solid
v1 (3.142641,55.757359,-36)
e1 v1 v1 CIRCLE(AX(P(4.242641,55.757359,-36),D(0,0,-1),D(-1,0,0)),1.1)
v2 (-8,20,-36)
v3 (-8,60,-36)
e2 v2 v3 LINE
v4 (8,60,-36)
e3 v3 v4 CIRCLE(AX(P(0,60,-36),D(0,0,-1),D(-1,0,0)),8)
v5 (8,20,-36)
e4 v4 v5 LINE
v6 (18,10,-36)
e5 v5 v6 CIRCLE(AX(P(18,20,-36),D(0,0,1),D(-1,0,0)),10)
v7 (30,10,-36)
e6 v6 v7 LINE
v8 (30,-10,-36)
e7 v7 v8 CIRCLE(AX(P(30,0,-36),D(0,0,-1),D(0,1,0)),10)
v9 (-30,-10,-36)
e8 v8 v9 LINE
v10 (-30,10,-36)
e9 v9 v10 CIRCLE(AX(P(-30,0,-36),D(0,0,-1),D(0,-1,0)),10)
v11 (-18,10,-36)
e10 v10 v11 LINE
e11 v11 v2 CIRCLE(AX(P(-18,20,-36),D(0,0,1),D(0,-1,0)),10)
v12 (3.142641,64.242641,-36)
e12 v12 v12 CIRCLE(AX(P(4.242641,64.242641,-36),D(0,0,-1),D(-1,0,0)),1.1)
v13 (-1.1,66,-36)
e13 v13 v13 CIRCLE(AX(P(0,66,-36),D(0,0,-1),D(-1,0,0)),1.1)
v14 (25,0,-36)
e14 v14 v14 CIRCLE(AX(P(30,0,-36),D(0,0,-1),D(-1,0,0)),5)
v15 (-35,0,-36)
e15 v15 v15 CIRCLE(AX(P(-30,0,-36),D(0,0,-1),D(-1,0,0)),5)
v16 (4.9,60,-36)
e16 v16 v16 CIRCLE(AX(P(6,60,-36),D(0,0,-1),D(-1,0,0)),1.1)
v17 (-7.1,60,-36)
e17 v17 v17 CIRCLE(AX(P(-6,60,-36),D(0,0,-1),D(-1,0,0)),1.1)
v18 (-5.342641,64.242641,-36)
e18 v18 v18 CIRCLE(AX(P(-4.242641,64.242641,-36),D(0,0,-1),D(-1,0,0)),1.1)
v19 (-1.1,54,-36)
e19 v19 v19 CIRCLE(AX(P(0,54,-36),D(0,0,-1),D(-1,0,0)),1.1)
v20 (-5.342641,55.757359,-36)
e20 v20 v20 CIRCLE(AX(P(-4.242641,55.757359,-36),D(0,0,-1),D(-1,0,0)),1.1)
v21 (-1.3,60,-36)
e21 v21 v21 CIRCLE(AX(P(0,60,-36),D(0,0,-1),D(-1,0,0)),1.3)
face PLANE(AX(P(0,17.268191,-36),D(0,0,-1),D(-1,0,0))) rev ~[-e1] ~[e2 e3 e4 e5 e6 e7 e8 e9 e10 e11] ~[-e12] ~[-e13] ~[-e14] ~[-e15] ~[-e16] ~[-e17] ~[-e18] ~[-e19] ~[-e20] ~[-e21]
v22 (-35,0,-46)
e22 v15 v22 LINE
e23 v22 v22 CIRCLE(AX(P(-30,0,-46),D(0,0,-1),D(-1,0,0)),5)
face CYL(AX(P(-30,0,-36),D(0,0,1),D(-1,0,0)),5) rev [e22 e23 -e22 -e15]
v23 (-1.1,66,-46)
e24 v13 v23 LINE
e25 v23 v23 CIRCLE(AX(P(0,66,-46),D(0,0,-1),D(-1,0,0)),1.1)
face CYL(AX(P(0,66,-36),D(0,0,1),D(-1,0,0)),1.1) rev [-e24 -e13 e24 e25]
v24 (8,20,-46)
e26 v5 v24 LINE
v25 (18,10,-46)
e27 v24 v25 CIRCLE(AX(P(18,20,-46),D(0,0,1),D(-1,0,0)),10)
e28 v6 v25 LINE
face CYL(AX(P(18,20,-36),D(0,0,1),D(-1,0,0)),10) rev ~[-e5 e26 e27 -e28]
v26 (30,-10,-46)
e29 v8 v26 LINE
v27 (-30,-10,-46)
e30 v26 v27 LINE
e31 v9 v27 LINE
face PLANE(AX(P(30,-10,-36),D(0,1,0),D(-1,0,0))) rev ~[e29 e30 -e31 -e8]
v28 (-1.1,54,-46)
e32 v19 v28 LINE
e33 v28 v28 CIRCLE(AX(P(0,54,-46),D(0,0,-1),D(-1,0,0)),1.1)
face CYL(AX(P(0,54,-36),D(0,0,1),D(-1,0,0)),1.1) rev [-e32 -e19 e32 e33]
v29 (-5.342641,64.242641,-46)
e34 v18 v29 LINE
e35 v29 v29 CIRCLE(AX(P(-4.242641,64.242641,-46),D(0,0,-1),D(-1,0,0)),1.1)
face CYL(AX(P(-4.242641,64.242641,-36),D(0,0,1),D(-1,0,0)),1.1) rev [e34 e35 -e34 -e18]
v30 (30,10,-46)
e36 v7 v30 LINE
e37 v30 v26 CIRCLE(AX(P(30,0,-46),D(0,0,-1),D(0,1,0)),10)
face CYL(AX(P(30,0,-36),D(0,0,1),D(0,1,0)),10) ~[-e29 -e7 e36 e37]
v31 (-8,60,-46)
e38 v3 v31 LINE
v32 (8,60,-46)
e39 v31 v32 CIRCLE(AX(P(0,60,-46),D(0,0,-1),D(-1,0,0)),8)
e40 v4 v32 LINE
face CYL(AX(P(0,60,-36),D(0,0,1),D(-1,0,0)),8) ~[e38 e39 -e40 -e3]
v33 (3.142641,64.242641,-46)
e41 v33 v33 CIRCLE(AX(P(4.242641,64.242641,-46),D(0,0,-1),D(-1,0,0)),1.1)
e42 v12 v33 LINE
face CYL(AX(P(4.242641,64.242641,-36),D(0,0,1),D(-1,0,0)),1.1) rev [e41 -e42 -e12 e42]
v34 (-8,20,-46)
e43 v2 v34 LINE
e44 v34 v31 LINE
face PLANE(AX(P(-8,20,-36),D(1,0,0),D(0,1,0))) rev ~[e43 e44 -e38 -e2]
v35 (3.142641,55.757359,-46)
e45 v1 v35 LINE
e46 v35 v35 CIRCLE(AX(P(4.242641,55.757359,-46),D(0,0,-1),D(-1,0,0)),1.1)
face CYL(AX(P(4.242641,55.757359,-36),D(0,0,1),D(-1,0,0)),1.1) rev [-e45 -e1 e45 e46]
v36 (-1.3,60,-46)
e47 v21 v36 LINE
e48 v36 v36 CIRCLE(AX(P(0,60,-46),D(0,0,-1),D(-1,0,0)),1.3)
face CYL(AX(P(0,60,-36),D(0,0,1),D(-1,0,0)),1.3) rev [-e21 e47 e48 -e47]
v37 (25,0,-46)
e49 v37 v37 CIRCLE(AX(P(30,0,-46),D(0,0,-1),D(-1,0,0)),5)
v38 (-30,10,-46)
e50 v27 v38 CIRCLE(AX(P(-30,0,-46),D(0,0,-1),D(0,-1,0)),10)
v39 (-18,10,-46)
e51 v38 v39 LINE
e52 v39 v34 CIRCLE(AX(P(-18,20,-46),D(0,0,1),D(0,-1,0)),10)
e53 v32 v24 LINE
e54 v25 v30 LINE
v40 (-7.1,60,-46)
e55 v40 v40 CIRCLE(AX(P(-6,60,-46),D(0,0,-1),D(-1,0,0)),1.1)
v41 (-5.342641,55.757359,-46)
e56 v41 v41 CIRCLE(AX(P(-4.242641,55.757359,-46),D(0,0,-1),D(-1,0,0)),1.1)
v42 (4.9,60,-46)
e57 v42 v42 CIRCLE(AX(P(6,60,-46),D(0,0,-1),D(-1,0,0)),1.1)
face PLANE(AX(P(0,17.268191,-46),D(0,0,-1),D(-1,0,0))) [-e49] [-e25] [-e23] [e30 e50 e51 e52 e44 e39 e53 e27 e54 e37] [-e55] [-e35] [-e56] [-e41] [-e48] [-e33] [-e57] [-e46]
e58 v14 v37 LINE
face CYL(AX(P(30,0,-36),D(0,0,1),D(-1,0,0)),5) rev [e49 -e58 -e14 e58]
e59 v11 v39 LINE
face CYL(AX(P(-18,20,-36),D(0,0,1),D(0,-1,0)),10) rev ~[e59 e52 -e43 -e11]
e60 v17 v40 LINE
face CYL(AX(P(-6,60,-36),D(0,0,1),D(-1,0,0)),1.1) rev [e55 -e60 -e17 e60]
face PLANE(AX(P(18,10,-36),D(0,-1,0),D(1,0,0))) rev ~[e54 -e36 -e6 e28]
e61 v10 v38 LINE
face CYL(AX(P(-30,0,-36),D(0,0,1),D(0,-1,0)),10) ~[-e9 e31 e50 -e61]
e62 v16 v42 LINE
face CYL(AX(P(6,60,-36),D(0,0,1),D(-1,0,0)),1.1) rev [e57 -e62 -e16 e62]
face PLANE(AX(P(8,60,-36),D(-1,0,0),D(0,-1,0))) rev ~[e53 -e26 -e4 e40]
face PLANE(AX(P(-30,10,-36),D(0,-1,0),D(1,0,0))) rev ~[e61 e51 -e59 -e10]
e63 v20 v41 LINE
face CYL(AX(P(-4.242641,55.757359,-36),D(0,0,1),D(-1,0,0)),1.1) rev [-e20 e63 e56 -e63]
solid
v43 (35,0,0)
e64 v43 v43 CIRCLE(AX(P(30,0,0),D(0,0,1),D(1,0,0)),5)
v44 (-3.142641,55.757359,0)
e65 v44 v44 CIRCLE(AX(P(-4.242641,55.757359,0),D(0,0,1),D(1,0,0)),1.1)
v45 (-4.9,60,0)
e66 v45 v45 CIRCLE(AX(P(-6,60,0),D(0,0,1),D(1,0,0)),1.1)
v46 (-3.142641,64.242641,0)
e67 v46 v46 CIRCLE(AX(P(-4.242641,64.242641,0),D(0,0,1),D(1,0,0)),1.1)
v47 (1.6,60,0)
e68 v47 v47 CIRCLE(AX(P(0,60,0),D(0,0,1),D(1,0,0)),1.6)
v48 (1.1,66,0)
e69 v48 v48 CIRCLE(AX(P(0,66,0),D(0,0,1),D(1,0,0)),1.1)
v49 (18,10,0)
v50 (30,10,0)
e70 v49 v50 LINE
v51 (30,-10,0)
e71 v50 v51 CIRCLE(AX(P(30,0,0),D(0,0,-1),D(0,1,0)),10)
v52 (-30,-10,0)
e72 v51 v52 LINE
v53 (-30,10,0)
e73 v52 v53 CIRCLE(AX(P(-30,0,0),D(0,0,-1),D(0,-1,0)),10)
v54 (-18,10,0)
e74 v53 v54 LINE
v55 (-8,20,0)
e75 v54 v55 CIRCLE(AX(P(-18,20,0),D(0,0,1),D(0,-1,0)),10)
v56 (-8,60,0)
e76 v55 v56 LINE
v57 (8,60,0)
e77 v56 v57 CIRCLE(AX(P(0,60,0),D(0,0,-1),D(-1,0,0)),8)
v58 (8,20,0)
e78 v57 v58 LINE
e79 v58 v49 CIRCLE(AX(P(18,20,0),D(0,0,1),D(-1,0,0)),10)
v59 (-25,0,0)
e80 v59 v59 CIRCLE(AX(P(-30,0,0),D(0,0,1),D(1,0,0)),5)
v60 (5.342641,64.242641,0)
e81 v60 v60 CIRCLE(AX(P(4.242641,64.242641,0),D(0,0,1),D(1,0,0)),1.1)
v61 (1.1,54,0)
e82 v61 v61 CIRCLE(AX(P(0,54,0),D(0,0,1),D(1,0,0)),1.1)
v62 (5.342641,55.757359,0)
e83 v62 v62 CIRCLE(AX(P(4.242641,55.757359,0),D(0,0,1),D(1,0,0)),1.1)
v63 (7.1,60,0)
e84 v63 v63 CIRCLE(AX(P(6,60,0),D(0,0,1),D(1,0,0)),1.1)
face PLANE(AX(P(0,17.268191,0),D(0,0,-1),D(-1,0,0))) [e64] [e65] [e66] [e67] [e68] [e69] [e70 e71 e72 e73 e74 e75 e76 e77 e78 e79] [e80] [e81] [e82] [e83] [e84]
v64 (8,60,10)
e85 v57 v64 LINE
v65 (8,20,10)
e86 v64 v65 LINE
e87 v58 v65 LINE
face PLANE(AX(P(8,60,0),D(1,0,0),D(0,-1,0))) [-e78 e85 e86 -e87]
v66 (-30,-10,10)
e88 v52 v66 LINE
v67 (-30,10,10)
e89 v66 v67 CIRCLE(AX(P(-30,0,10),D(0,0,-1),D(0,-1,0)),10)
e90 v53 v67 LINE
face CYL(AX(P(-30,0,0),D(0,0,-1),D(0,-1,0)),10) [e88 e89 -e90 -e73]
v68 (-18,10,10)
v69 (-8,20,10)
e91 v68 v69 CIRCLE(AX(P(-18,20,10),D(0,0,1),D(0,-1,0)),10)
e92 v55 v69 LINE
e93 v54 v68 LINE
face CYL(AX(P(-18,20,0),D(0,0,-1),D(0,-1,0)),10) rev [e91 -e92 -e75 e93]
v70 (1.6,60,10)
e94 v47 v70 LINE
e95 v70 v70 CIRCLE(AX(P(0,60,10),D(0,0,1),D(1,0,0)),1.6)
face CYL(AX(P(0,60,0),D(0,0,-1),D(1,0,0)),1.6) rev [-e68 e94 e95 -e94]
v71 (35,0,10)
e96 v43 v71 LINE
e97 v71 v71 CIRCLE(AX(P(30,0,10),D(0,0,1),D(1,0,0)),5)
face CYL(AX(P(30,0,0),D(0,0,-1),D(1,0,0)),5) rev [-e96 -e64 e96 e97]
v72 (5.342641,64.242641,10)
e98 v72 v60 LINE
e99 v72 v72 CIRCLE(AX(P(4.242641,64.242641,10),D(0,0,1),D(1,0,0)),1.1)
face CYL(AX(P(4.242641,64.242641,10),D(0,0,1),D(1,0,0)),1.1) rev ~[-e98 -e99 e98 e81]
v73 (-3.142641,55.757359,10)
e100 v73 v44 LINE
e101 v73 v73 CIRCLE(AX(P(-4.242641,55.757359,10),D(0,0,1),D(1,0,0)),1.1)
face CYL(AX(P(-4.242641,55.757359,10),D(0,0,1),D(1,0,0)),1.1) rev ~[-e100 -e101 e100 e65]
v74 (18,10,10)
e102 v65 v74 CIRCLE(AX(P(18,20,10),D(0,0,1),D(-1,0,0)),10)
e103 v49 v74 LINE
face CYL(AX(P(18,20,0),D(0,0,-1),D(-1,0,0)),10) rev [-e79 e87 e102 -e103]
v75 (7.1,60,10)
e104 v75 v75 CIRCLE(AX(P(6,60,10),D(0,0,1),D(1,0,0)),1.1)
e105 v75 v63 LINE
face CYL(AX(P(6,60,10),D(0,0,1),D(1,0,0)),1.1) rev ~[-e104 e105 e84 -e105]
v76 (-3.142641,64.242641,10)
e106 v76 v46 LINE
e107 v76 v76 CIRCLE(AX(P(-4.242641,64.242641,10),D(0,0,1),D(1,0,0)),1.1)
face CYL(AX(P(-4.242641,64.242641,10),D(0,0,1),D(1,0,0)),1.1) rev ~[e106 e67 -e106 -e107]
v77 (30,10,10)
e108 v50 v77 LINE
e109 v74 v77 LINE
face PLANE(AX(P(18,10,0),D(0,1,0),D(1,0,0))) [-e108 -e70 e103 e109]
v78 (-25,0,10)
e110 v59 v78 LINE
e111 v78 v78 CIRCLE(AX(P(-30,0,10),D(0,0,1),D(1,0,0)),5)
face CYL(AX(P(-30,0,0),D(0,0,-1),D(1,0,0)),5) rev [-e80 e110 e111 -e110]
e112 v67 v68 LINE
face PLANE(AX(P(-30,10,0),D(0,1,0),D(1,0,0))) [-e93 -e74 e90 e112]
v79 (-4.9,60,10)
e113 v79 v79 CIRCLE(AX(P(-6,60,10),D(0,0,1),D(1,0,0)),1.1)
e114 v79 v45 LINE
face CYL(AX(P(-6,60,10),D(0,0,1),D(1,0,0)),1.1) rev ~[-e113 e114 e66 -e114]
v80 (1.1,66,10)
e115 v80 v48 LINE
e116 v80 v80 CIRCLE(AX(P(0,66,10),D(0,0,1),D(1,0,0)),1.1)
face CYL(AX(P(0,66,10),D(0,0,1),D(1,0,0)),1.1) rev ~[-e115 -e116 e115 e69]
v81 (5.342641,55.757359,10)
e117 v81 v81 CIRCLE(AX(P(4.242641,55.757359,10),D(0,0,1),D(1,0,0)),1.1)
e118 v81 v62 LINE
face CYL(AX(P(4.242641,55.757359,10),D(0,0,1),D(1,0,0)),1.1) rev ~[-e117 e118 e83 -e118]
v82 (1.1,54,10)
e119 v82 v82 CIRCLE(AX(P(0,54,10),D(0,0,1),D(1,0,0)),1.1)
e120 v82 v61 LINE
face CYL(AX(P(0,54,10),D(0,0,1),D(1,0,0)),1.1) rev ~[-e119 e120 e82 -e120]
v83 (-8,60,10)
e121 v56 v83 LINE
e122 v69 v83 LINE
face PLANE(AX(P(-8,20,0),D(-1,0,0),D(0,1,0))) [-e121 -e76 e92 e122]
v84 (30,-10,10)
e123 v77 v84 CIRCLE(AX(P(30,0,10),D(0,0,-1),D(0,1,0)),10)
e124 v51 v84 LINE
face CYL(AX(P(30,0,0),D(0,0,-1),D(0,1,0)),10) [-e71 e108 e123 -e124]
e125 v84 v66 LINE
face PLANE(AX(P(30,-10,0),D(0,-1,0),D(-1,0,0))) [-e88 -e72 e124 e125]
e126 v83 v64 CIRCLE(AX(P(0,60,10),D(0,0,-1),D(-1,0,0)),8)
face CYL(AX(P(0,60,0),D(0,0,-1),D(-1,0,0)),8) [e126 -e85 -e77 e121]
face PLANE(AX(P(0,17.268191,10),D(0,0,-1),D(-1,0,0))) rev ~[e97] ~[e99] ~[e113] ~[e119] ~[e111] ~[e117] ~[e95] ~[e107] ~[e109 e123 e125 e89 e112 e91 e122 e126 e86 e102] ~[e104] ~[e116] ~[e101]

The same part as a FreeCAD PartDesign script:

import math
import FreeCAD as App
import Part
import Sketcher

V = App.Vector

doc = App.newDocument("Part")
body = doc.addObject("PartDesign::Body", "Body")

# Sketch on XY plane
sketch1 = body.newObject("Sketcher::SketchObject", "Sketch")
sketch1.AttachmentSupport = (doc.getObject("XY_Plane"), [""])
sketch1.MapMode = "FlatFace"
sketch1.addGeometry([
    Part.LineSegment(V(-18, 10, 0), V(-30, 10, 0)),  # 0
    Part.ArcOfCircle(Part.Circle(V(-30, 0, 0), V(0, 0, 1), 10), math.radians(90), math.radians(270)),  # 1
    Part.LineSegment(V(-30, -10, 0), V(30, -10, 0)),  # 2
    Part.ArcOfCircle(Part.Circle(V(30, 0, 0), V(0, 0, 1), 10), math.radians(-90), math.radians(90)),  # 3
    Part.LineSegment(V(30, 10, 0), V(18, 10, 0)),  # 4
    Part.ArcOfCircle(Part.Circle(V(18, 20, 0), V(0, 0, 1), 10), math.radians(180), math.radians(270)),  # 5
    Part.LineSegment(V(8, 20, 0), V(8, 60, 0)),  # 6
    Part.ArcOfCircle(Part.Circle(V(0, 60, 0), V(0, 0, 1), 8), math.radians(0), math.radians(180)),  # 7
    Part.LineSegment(V(-8, 60, 0), V(-8, 20, 0)),  # 8
    Part.ArcOfCircle(Part.Circle(V(-18, 20, 0), V(0, 0, 1), 10), math.radians(-90), math.radians(0)),  # 9
    Part.Circle(V(30, 0, 0), V(0, 0, 1), 5),  # 10
    Part.Circle(V(-30, 0, 0), V(0, 0, 1), 5),  # 11
    Part.Circle(V(0, 60, 0), V(0, 0, 1), 1.6),  # 12
], False)
sketch1.addConstraint([
    Sketcher.Constraint("Tangent", 0, 2, 1, 1),
    Sketcher.Constraint("Tangent", 1, 2, 2, 1),
    Sketcher.Constraint("Tangent", 2, 2, 3, 1),
    Sketcher.Constraint("Tangent", 3, 2, 4, 1),
    Sketcher.Constraint("Tangent", 4, 2, 5, 2),
    Sketcher.Constraint("Tangent", 5, 1, 6, 1),
    Sketcher.Constraint("Tangent", 6, 2, 7, 1),
    Sketcher.Constraint("Tangent", 7, 2, 8, 1),
    Sketcher.Constraint("Tangent", 8, 2, 9, 2),
    Sketcher.Constraint("Tangent", 9, 1, 0, 1),
    Sketcher.Constraint("Horizontal", 0),
    Sketcher.Constraint("Horizontal", 2),
    Sketcher.Constraint("Horizontal", 4),
    Sketcher.Constraint("Vertical", 6),
    Sketcher.Constraint("Vertical", 8),
    Sketcher.Constraint("Coincident", 10, 3, 3, 3),
    Sketcher.Constraint("Coincident", 11, 3, 1, 3),
    Sketcher.Constraint("Coincident", 12, 3, 7, 3),
    Sketcher.Constraint("Equal", 1, 3),
    Sketcher.Constraint("Equal", 3, 5),
    Sketcher.Constraint("Equal", 5, 9),
    Sketcher.Constraint("Equal", 10, 11),
    Sketcher.Constraint("Symmetric", 1, 3, 3, 3, -1, 1),
    Sketcher.Constraint("PointOnObject", 7, 3, -2),
    Sketcher.Constraint("Diameter", 10, 10.0),
    Sketcher.Constraint("Radius", 1, 10.0),
    Sketcher.Constraint("Radius", 7, 8.0),
    Sketcher.Constraint("Diameter", 12, 3.2),
    Sketcher.Constraint("DistanceX", 0, 2, 0, 1, 12.0),
    Sketcher.Constraint("DistanceY", 6, 1, 6, 2, 40.0),
])
pad1 = body.newObject("PartDesign::Pad", "Pad")
pad1.Profile = sketch1
pad1.Length = 10

# Sketch on XY plane
sketch2 = body.newObject("Sketcher::SketchObject", "Sketch001")
sketch2.AttachmentSupport = (doc.getObject("XY_Plane"), [""])
sketch2.MapMode = "FlatFace"
sketch2.AttachmentOffset = App.Placement(V(0, 0, 10), App.Rotation())
sketch2.addGeometry([
    Part.Circle(V(0, 66, 0), V(0, 0, 1), 1.1),  # 0
    Part.Circle(V(4.2, 64.2, 0), V(0, 0, 1), 1.1),  # 1
    Part.Circle(V(6, 60, 0), V(0, 0, 1), 1.1),  # 2
    Part.Circle(V(4.2, 55.8, 0), V(0, 0, 1), 1.1),  # 3
    Part.Circle(V(0, 54, 0), V(0, 0, 1), 1.1),  # 4
    Part.Circle(V(-4.2, 55.8, 0), V(0, 0, 1), 1.1),  # 5
    Part.Circle(V(-6, 60, 0), V(0, 0, 1), 1.1),  # 6
    Part.Circle(V(-4.2, 64.2, 0), V(0, 0, 1), 1.1),  # 7
], False)
sketch2.addConstraint([
    Sketcher.Constraint("Equal", 0, 1),
    Sketcher.Constraint("Equal", 1, 2),
    Sketcher.Constraint("Equal", 2, 3),
    Sketcher.Constraint("Equal", 3, 4),
    Sketcher.Constraint("Equal", 4, 5),
    Sketcher.Constraint("Equal", 5, 6),
    Sketcher.Constraint("Equal", 6, 7),
    Sketcher.Constraint("Symmetric", 3, 3, 5, 3, -2),
    Sketcher.Constraint("Symmetric", 2, 3, 6, 3, -2),
    Sketcher.Constraint("Symmetric", 1, 3, 7, 3, -2),
    Sketcher.Constraint("PointOnObject", 0, 3, -2),
    Sketcher.Constraint("PointOnObject", 4, 3, -2),
    Sketcher.Constraint("Vertical", 1, 3, 3, 3),
    Sketcher.Constraint("Diameter", 0, 2.2),
    Sketcher.Constraint("DistanceY", -1, 1, 0, 3, 66.0),
    Sketcher.Constraint("DistanceX", -1, 1, 2, 3, 6.0),
    Sketcher.Constraint("DistanceY", -1, 1, 2, 3, 60.0),
    Sketcher.Constraint("DistanceY", -1, 1, 4, 3, 54.0),
    Sketcher.Constraint("DistanceX", -1, 1, 1, 3, 4.242641),
    Sketcher.Constraint("DistanceY", -1, 1, 1, 3, 64.242641),
    Sketcher.Constraint("DistanceY", -1, 1, 3, 3, 55.757359),
])
pocket1 = body.newObject("PartDesign::Pocket", "Pocket")
pocket1.Profile = sketch2
pocket1.Type = "ThroughAll"
body2 = doc.addObject("PartDesign::Body", "Body001")

# Sketch on XY plane
sketch3 = body2.newObject("Sketcher::SketchObject", "Sketch002")
sketch3.AttachmentSupport = (doc.getObject("XY_Plane001"), [""])
sketch3.MapMode = "FlatFace"
sketch3.AttachmentOffset = App.Placement(V(0, 0, -36), App.Rotation())
sketch3.addGeometry([
    Part.LineSegment(V(-30, 10, 0), V(-18, 10, 0)),  # 0
    Part.ArcOfCircle(Part.Circle(V(-18, 20, 0), V(0, 0, 1), 10), math.radians(-90), math.radians(0)),  # 1
    Part.LineSegment(V(-8, 20, 0), V(-8, 60, 0)),  # 2
    Part.ArcOfCircle(Part.Circle(V(0, 60, 0), V(0, 0, 1), 8), math.radians(0), math.radians(180)),  # 3
    Part.LineSegment(V(8, 60, 0), V(8, 20, 0)),  # 4
    Part.ArcOfCircle(Part.Circle(V(18, 20, 0), V(0, 0, 1), 10), math.radians(180), math.radians(270)),  # 5
    Part.LineSegment(V(18, 10, 0), V(30, 10, 0)),  # 6
    Part.ArcOfCircle(Part.Circle(V(30, 0, 0), V(0, 0, 1), 10), math.radians(-90), math.radians(90)),  # 7
    Part.LineSegment(V(30, -10, 0), V(-30, -10, 0)),  # 8
    Part.ArcOfCircle(Part.Circle(V(-30, 0, 0), V(0, 0, 1), 10), math.radians(90), math.radians(270)),  # 9
    Part.Circle(V(30, 0, 0), V(0, 0, 1), 5),  # 10
    Part.Circle(V(-30, 0, 0), V(0, 0, 1), 5),  # 11
    Part.Circle(V(4.2, 55.8, 0), V(0, 0, 1), 1.1),  # 12
    Part.Circle(V(6, 60, 0), V(0, 0, 1), 1.1),  # 13
    Part.Circle(V(4.2, 64.2, 0), V(0, 0, 1), 1.1),  # 14
    Part.Circle(V(0, 54, 0), V(0, 0, 1), 1.1),  # 15
    Part.Circle(V(-4.2, 55.8, 0), V(0, 0, 1), 1.1),  # 16
    Part.Circle(V(0, 60, 0), V(0, 0, 1), 1.3),  # 17
    Part.Circle(V(-6, 60, 0), V(0, 0, 1), 1.1),  # 18
    Part.Circle(V(-4.2, 64.2, 0), V(0, 0, 1), 1.1),  # 19
    Part.Circle(V(0, 66, 0), V(0, 0, 1), 1.1),  # 20
], False)
sketch3.addConstraint([
    Sketcher.Constraint("Tangent", 0, 2, 1, 1),
    Sketcher.Constraint("Tangent", 1, 2, 2, 1),
    Sketcher.Constraint("Tangent", 2, 2, 3, 2),
    Sketcher.Constraint("Tangent", 3, 1, 4, 1),
    Sketcher.Constraint("Tangent", 4, 2, 5, 1),
    Sketcher.Constraint("Tangent", 5, 2, 6, 1),
    Sketcher.Constraint("Tangent", 6, 2, 7, 2),
    Sketcher.Constraint("Tangent", 7, 1, 8, 1),
    Sketcher.Constraint("Tangent", 8, 2, 9, 2),
    Sketcher.Constraint("Tangent", 9, 1, 0, 1),
    Sketcher.Constraint("Horizontal", 0),
    Sketcher.Constraint("Vertical", 2),
    Sketcher.Constraint("Vertical", 4),
    Sketcher.Constraint("Horizontal", 6),
    Sketcher.Constraint("Horizontal", 8),
    Sketcher.Constraint("Coincident", 10, 3, 7, 3),
    Sketcher.Constraint("Coincident", 11, 3, 9, 3),
    Sketcher.Constraint("Coincident", 17, 3, 3, 3),
    Sketcher.Constraint("Equal", 1, 5),
    Sketcher.Constraint("Equal", 5, 7),
    Sketcher.Constraint("Equal", 7, 9),
    Sketcher.Constraint("Equal", 10, 11),
    Sketcher.Constraint("Equal", 12, 13),
    Sketcher.Constraint("Equal", 13, 14),
    Sketcher.Constraint("Equal", 14, 15),
    Sketcher.Constraint("Equal", 15, 16),
    Sketcher.Constraint("Equal", 16, 18),
    Sketcher.Constraint("Equal", 18, 19),
    Sketcher.Constraint("Equal", 19, 20),
    Sketcher.Constraint("Symmetric", 7, 3, 9, 3, -1, 1),
    Sketcher.Constraint("Symmetric", 12, 3, 16, 3, -2),
    Sketcher.Constraint("Symmetric", 13, 3, 18, 3, -2),
    Sketcher.Constraint("Symmetric", 14, 3, 19, 3, -2),
    Sketcher.Constraint("PointOnObject", 3, 3, -2),
    Sketcher.Constraint("PointOnObject", 15, 3, -2),
    Sketcher.Constraint("PointOnObject", 20, 3, -2),
    Sketcher.Constraint("Horizontal", 3, 3, 13, 3),
    Sketcher.Constraint("Vertical", 12, 3, 14, 3),
    Sketcher.Constraint("Diameter", 10, 10.0),
    Sketcher.Constraint("Radius", 1, 10.0),
    Sketcher.Constraint("Radius", 3, 8.0),
    Sketcher.Constraint("Diameter", 12, 2.2),
    Sketcher.Constraint("Diameter", 17, 2.6),
    Sketcher.Constraint("DistanceX", 0, 1, 0, 2, 12.0),
    Sketcher.Constraint("DistanceY", 2, 1, 2, 2, 40.0),
    Sketcher.Constraint("DistanceX", -1, 1, 13, 3, 6.0),
    Sketcher.Constraint("DistanceY", -1, 1, 15, 3, 54.0),
    Sketcher.Constraint("DistanceY", -1, 1, 20, 3, 66.0),
    Sketcher.Constraint("DistanceX", -1, 1, 12, 3, 4.242641),
    Sketcher.Constraint("DistanceY", -1, 1, 12, 3, 55.757359),
    Sketcher.Constraint("DistanceY", -1, 1, 14, 3, 64.242641),
])
pad2 = body2.newObject("PartDesign::Pad", "Pad001")
pad2.Profile = sketch3
pad2.Length = 10
pad2.Reversed = True

doc.recompute()
